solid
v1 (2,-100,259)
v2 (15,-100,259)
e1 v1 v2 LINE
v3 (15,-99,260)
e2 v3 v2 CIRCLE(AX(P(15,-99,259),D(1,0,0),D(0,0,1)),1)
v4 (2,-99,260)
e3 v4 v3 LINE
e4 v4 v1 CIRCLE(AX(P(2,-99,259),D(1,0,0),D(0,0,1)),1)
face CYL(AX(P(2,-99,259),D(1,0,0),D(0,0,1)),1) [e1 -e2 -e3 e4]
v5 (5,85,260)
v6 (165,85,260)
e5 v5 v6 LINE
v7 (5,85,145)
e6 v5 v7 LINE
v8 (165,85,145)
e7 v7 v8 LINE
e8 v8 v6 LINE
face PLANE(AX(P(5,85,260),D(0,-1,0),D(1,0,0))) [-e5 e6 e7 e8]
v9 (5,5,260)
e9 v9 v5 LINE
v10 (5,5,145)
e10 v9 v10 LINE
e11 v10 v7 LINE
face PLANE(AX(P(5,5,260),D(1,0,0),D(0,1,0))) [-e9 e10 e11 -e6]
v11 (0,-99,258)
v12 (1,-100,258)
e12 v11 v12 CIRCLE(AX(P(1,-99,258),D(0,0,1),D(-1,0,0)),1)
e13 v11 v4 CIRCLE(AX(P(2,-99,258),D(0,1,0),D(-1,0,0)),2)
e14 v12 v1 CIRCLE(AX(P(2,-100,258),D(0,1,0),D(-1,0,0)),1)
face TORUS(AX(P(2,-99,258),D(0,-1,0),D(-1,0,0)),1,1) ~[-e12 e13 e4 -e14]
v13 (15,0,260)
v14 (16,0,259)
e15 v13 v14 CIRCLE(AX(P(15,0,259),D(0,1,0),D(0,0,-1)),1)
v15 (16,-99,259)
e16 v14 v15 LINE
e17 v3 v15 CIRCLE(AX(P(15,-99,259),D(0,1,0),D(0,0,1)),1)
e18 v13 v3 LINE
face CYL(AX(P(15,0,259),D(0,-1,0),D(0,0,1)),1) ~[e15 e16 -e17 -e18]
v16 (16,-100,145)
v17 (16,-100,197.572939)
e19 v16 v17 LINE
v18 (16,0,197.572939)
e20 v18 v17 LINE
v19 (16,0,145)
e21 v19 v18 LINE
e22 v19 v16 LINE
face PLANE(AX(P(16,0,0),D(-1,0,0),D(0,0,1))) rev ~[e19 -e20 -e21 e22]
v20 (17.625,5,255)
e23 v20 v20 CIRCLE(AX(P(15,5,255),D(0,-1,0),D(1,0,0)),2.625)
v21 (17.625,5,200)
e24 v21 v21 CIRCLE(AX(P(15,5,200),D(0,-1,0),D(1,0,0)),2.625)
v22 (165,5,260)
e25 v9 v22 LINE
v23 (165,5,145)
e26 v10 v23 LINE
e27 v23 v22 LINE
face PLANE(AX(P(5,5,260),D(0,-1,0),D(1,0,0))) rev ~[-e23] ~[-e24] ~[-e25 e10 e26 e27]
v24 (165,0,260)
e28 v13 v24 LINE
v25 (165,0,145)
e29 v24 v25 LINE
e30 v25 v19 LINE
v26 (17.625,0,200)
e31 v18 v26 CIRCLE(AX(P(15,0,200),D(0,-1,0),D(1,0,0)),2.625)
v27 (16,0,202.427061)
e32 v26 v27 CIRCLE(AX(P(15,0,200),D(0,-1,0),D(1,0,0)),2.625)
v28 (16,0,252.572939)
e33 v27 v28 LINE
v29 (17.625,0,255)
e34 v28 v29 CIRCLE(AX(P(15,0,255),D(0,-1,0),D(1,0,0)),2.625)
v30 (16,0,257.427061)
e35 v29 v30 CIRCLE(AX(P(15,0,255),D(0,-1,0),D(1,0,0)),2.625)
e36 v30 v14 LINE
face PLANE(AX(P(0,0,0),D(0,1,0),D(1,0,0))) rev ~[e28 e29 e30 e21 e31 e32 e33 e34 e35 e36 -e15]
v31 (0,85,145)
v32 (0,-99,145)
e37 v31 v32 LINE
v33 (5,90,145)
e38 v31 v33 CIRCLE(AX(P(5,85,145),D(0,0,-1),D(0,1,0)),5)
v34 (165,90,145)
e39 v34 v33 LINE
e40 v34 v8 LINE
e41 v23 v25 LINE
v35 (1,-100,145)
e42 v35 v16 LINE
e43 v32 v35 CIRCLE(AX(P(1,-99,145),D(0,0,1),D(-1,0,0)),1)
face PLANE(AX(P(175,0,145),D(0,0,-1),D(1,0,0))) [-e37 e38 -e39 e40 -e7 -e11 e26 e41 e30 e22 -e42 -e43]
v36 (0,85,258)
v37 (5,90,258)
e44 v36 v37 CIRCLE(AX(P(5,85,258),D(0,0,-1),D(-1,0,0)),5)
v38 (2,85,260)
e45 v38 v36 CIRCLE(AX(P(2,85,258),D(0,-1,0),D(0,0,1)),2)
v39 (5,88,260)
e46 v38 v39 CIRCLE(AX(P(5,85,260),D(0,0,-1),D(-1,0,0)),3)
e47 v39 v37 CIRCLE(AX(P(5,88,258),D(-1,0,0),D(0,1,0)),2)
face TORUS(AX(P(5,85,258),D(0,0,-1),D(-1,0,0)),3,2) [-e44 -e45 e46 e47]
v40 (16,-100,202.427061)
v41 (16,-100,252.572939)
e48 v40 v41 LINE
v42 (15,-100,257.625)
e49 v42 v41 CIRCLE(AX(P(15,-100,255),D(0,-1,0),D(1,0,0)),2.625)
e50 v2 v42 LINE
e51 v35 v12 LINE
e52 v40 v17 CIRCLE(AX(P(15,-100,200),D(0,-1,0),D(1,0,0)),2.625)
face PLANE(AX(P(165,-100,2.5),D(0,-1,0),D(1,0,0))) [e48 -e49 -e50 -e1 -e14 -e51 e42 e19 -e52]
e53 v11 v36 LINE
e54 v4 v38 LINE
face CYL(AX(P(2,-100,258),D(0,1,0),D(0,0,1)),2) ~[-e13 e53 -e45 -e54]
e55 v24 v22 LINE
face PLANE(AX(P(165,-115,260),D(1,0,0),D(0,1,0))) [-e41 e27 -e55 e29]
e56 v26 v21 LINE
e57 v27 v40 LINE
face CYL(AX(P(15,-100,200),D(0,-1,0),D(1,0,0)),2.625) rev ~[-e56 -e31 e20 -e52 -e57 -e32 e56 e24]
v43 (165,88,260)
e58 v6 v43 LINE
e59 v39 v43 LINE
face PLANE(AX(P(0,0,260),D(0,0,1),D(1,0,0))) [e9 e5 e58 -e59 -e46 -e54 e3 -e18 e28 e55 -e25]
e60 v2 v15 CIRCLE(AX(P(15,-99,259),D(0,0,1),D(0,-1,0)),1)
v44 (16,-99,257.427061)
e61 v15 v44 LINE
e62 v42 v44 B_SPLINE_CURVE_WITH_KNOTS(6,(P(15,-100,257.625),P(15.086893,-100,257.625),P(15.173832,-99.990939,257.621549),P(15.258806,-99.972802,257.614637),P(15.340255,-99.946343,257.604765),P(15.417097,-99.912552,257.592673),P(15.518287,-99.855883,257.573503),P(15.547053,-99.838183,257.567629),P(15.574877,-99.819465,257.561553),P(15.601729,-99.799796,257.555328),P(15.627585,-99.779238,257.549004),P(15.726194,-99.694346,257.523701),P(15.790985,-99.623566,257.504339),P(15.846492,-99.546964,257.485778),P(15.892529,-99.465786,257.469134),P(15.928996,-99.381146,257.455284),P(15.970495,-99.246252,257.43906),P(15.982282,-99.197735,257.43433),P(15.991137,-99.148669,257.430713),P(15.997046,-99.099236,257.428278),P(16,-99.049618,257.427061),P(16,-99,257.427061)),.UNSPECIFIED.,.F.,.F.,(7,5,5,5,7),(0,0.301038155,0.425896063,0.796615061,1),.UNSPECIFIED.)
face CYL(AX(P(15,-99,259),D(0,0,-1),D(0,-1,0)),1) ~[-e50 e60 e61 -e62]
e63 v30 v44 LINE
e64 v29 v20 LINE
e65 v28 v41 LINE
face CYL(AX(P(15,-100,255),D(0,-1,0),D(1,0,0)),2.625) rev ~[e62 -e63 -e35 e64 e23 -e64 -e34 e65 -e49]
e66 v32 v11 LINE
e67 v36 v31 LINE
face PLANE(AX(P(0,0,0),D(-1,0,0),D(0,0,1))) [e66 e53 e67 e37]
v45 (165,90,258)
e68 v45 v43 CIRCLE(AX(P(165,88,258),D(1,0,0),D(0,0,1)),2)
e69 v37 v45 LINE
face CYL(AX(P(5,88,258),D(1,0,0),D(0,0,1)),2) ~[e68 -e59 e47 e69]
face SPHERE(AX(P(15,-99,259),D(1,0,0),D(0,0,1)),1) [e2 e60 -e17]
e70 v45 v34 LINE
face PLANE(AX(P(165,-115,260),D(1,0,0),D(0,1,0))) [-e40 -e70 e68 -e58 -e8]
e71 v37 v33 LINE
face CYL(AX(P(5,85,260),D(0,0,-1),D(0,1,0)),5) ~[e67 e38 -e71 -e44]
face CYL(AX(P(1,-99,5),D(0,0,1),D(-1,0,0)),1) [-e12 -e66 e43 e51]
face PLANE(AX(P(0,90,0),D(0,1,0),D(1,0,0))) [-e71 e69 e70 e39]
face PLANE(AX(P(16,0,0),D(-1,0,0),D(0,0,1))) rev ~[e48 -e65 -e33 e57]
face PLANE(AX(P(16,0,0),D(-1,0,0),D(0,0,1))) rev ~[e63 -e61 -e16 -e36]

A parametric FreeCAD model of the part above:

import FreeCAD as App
import Part
import Sketcher
from FreeCAD import Vector
Q = App.Units.Quantity


def edges_at(feature, points):
    """Names of the edges that pass closest to the given points."""
    edges = feature.Shape.Edges
    near = lambda p: min(range(len(edges)), key=lambda i: edges[i].distToShape(Part.Vertex(*p))[0])
    return sorted({f"Edge{near(p) + 1}" for p in points})


def add_polygon(sketch, points):
    """Adds a closed chain of lines whose ends are joined by coincident constraints."""
    first, n = sketch.GeometryCount, len(points)
    for a, b in zip(points, points[1:] + points[:1]):
        sketch.addGeometry(Part.LineSegment(App.Vector(*a, 0), App.Vector(*b, 0)), False)
    for i in range(n):
        sketch.addConstraint(Sketcher.Constraint("Coincident", first + i, 2, first + (i + 1) % n, 1))

doc = App.newDocument("Part")
params = doc.addObject("Spreadsheet::Sheet", "Params")
for row, (alias, value) in enumerate([
    ("sketch1_width", "330 mm"),
    ("sketch1_height", "90 mm"),
    ("pad1_length", "260 mm"),
    ("sketch2_width", "320 mm"),
    ("sketch2_height", "80 mm"),
    ("pocket1_length", "250 mm"),
    ("sketch3_width", "16 mm"),
    ("sketch3_height", "260 mm"),
    ("pad2_length", "100 mm"),
    ("sketch4_diameter", "5.25 mm"),
    ("pocket2_length", "105 mm"),
    ("fillet_radius", "5 mm"),
    ("fillet2_radius", "5 mm"),
    ("fillet3_radius", "5 mm"),
    ("fillet4_radius", "2 mm"),
    ("fillet5_radius", "1 mm"),
    ("fillet6_radius", "1 mm"),
    ("fillet7_radius", "1 mm"),
    ("fillet8_radius", "1 mm"),
    ("sketch5_width", "298 mm"),
    ("sketch5_height", "5 mm"),
    ("pad3_length", "100 mm"),
    ("fillet9_radius", "1 mm"),
    ("sketch6_width", "390 mm"),
    ("sketch6_height", "230 mm"),
    ("pocket3_length", "145 mm"),
    ("sketch7_width", "165 mm"),
    ("sketch7_height", "230 mm"),
    ("pocket4_length", "300 mm"),
], start=1):
    params.set(f"A{row}", alias)
    params.set(f"B{row}", "=" + value)
    params.setAlias(f"B{row}", alias)

body = doc.addObject("PartDesign::Body", "Body")

# Sketch on XY plane
sketch1 = body.newObject("Sketcher::SketchObject", "Sketch")
sketch1.AttachmentSupport = (doc.getObject("XY_Plane"), [""])
sketch1.MapMode = "FlatFace"
add_polygon(sketch1, [(0, 90), (0, 0), (330, 0), (330, 90)])  # lines 0-3
sketch1.addConstraint(Sketcher.Constraint("Vertical", 0))
sketch1.addConstraint(Sketcher.Constraint("Horizontal", 1))
sketch1.addConstraint(Sketcher.Constraint("Vertical", 2))
sketch1.addConstraint(Sketcher.Constraint("Horizontal", 3))
sketch1.addConstraint(Sketcher.Constraint("Coincident", 0, 2, -1, 1))
sketch1.addConstraint(Sketcher.Constraint("DistanceX", 1, 1, 1, 2, Q("330 mm")))
sketch1.addConstraint(Sketcher.Constraint("DistanceY", 0, 2, 0, 1, Q("90 mm")))
sketch1.setExpression("Constraints[9]", "Params.sketch1_width")
sketch1.setExpression("Constraints[10]", "Params.sketch1_height")
pad1 = body.newObject("PartDesign::Pad", "Pad")
pad1.Profile = sketch1
pad1.setExpression("Length", "Params.pad1_length")

# Sketch on XY plane
sketch2 = body.newObject("Sketcher::SketchObject", "Sketch001")
sketch2.AttachmentSupport = (doc.getObject("XY_Plane"), [""])
sketch2.MapMode = "FlatFace"
sketch2.AttachmentOffset = App.Placement(Vector(0, 0, 260), App.Rotation())
add_polygon(sketch2, [(5, 85), (5, 5), (325, 5), (325, 85)])  # lines 0-3
sketch2.addConstraint(Sketcher.Constraint("Vertical", 0))
sketch2.addConstraint(Sketcher.Constraint("Horizontal", 1))
sketch2.addConstraint(Sketcher.Constraint("Vertical", 2))
sketch2.addConstraint(Sketcher.Constraint("Horizontal", 3))
sketch2.addConstraint(Sketcher.Constraint("DistanceX", 1, 1, 1, 2, Q("320 mm")))
sketch2.addConstraint(Sketcher.Constraint("DistanceY", 0, 2, 0, 1, Q("80 mm")))
sketch2.addConstraint(Sketcher.Constraint("DistanceX", -1, 1, 0, 2, Q("5 mm")))
sketch2.addConstraint(Sketcher.Constraint("DistanceY", -1, 1, 0, 2, Q("5 mm")))
sketch2.setExpression("Constraints[8]", "Params.sketch2_width")
sketch2.setExpression("Constraints[9]", "Params.sketch2_height")
pocket1 = body.newObject("PartDesign::Pocket", "Pocket")
pocket1.Profile = sketch2
pocket1.setExpression("Length", "Params.pocket1_length")

# Sketch on XZ plane
sketch3 = body.newObject("Sketcher::SketchObject", "Sketch002")
sketch3.AttachmentSupport = (doc.getObject("XZ_Plane"), [""])
sketch3.MapMode = "FlatFace"
add_polygon(sketch3, [(0, 260), (0, 0), (16, 0), (16, 260)])  # lines 0-3
add_polygon(sketch3, [(314, 260), (314, 0), (330, 0), (330, 260)])  # lines 4-7
sketch3.addConstraint(Sketcher.Constraint("Vertical", 0))
sketch3.addConstraint(Sketcher.Constraint("Horizontal", 1))
sketch3.addConstraint(Sketcher.Constraint("Vertical", 2))
sketch3.addConstraint(Sketcher.Constraint("Horizontal", 3))
sketch3.addConstraint(Sketcher.Constraint("Vertical", 4))
sketch3.addConstraint(Sketcher.Constraint("Horizontal", 5))
sketch3.addConstraint(Sketcher.Constraint("Vertical", 6))
sketch3.addConstraint(Sketcher.Constraint("Horizontal", 7))
sketch3.addConstraint(Sketcher.Constraint("Coincident", 0, 2, -1, 1))
sketch3.addConstraint(Sketcher.Constraint("PointOnObject", 4, 2, -1))
sketch3.addConstraint(Sketcher.Constraint("Horizontal", 3, 2, 6, 2))
sketch3.addConstraint(Sketcher.Constraint("Equal", 3, 5))
sketch3.addConstraint(Sketcher.Constraint("DistanceX", 1, 1, 1, 2, Q("16 mm")))
sketch3.addConstraint(Sketcher.Constraint("DistanceY", 0, 2, 0, 1, Q("260 mm")))
sketch3.addConstraint(Sketcher.Constraint("DistanceX", -1, 1, 4, 2, Q("314 mm")))
sketch3.setExpression("Constraints[20]", "Params.sketch3_width")
sketch3.setExpression("Constraints[21]", "Params.sketch3_height")
pad2 = body.newObject("PartDesign::Pad", "Pad001")
pad2.Profile = sketch3
pad2.setExpression("Length", "Params.pad2_length")

# Sketch on XZ plane
sketch4 = body.newObject("Sketcher::SketchObject", "Sketch003")
sketch4.AttachmentSupport = (doc.getObject("XZ_Plane"), [""])
sketch4.MapMode = "FlatFace"
sketch4.AttachmentOffset = App.Placement(Vector(0, 0, 100), App.Rotation())
sketch4.addGeometry(Part.Circle(Vector(15, 40, 0), Vector(0, 0, 1), 2.625), False)
sketch4.addGeometry(Part.Circle(Vector(315, 40, 0), Vector(0, 0, 1), 2.625), False)
sketch4.addGeometry(Part.Circle(Vector(15, 120, 0), Vector(0, 0, 1), 2.625), False)
sketch4.addGeometry(Part.Circle(Vector(315, 120, 0), Vector(0, 0, 1), 2.625), False)
sketch4.addGeometry(Part.Circle(Vector(15, 200, 0), Vector(0, 0, 1), 2.625), False)
sketch4.addGeometry(Part.Circle(Vector(315, 200, 0), Vector(0, 0, 1), 2.625), False)
sketch4.addGeometry(Part.Circle(Vector(15, 255, 0), Vector(0, 0, 1), 2.625), False)
sketch4.addGeometry(Part.Circle(Vector(315, 255, 0), Vector(0, 0, 1), 2.625), False)
sketch4.addConstraint(Sketcher.Constraint("Equal", 0, 1))
sketch4.addConstraint(Sketcher.Constraint("Equal", 1, 2))
sketch4.addConstraint(Sketcher.Constraint("Equal", 2, 3))
sketch4.addConstraint(Sketcher.Constraint("Equal", 3, 4))
sketch4.addConstraint(Sketcher.Constraint("Equal", 4, 5))
sketch4.addConstraint(Sketcher.Constraint("Equal", 5, 6))
sketch4.addConstraint(Sketcher.Constraint("Equal", 6, 7))
sketch4.addConstraint(Sketcher.Constraint("Horizontal", 0, 3, 1, 3))
sketch4.addConstraint(Sketcher.Constraint("Horizontal", 2, 3, 3, 3))
sketch4.addConstraint(Sketcher.Constraint("Horizontal", 4, 3, 5, 3))
sketch4.addConstraint(Sketcher.Constraint("Horizontal", 6, 3, 7, 3))
sketch4.addConstraint(Sketcher.Constraint("Vertical", 0, 3, 2, 3))
sketch4.addConstraint(Sketcher.Constraint("Vertical", 1, 3, 3, 3))
sketch4.addConstraint(Sketcher.Constraint("Vertical", 2, 3, 4, 3))
sketch4.addConstraint(Sketcher.Constraint("Vertical", 3, 3, 5, 3))
sketch4.addConstraint(Sketcher.Constraint("Vertical", 4, 3, 6, 3))
sketch4.addConstraint(Sketcher.Constraint("Vertical", 5, 3, 7, 3))
sketch4.addConstraint(Sketcher.Constraint("Diameter", 0, Q("5.25 mm")))
sketch4.addConstraint(Sketcher.Constraint("DistanceX", -1, 1, 0, 3, Q("15 mm")))
sketch4.addConstraint(Sketcher.Constraint("DistanceY", -1, 1, 0, 3, Q("40 mm")))
sketch4.addConstraint(Sketcher.Constraint("DistanceX", -1, 1, 1, 3, Q("315 mm")))
sketch4.addConstraint(Sketcher.Constraint("DistanceY", -1, 1, 2, 3, Q("120 mm")))
sketch4.addConstraint(Sketcher.Constraint("DistanceY", -1, 1, 4, 3, Q("200 mm")))
sketch4.addConstraint(Sketcher.Constraint("DistanceY", -1, 1, 6, 3, Q("255 mm")))
sketch4.setExpression("Constraints[17]", "Params.sketch4_diameter")
pocket2 = body.newObject("PartDesign::Pocket", "Pocket001")
pocket2.Profile = sketch4
pocket2.setExpression("Length", "Params.pocket2_length")
doc.recompute()

fillet = body.newObject("PartDesign::Fillet", "Fillet")
fillet.Base = (pocket2, edges_at(pocket2, [(0, -5, 0)]))
fillet.setExpression("Radius", "Params.fillet_radius")
doc.recompute()

fillet2 = body.newObject("PartDesign::Fillet", "Fillet001")
fillet2.Base = (fillet, edges_at(fillet, [(330, -5, 0)]))
fillet2.setExpression("Radius", "Params.fillet2_radius")
doc.recompute()

fillet3 = body.newObject("PartDesign::Fillet", "Fillet002")
fillet3.Base = (fillet2, edges_at(fillet2, [(165, 90, 0)]))
fillet3.setExpression("Radius", "Params.fillet3_radius")
doc.recompute()

fillet4 = body.newObject("PartDesign::Fillet", "Fillet003")
fillet4.Base = (fillet3, edges_at(fillet3, [(0, -7.5, 260)]))
fillet4.setExpression("Radius", "Params.fillet4_radius")
doc.recompute()

fillet5 = body.newObject("PartDesign::Fillet", "Fillet004")
fillet5.Base = (fillet4, edges_at(fillet4, [(9, -100, 260)]))
fillet5.setExpression("Radius", "Params.fillet5_radius")
doc.recompute()

fillet6 = body.newObject("PartDesign::Fillet", "Fillet005")
fillet6.Base = (fillet5, edges_at(fillet5, [(16, -49.5, 260)]))
fillet6.setExpression("Radius", "Params.fillet6_radius")
doc.recompute()

fillet7 = body.newObject("PartDesign::Fillet", "Fillet006")
fillet7.Base = (fillet6, edges_at(fillet6, [(321, -100, 260)]))
fillet7.setExpression("Radius", "Params.fillet7_radius")
doc.recompute()

fillet8 = body.newObject("PartDesign::Fillet", "Fillet007")
fillet8.Base = (fillet7, edges_at(fillet7, [(314, -49.5, 260)]))
fillet8.setExpression("Radius", "Params.fillet8_radius")

# Sketch on XZ plane
sketch5 = body.newObject("Sketcher::SketchObject", "Sketch004")
sketch5.AttachmentSupport = (doc.getObject("XZ_Plane"), [""])
sketch5.MapMode = "FlatFace"
add_polygon(sketch5, [(16, 5), (16, 0), (314, 0), (314, 5)])  # lines 0-3
sketch5.addConstraint(Sketcher.Constraint("Vertical", 0))
sketch5.addConstraint(Sketcher.Constraint("Horizontal", 1))
sketch5.addConstraint(Sketcher.Constraint("Vertical", 2))
sketch5.addConstraint(Sketcher.Constraint("Horizontal", 3))
sketch5.addConstraint(Sketcher.Constraint("PointOnObject", 0, 2, -1))
sketch5.addConstraint(Sketcher.Constraint("DistanceX", 1, 1, 1, 2, Q("298 mm")))
sketch5.addConstraint(Sketcher.Constraint("DistanceY", 0, 2, 0, 1, Q("5 mm")))
sketch5.addConstraint(Sketcher.Constraint("DistanceX", -1, 1, 0, 2, Q("16 mm")))
sketch5.setExpression("Constraints[9]", "Params.sketch5_width")
sketch5.setExpression("Constraints[10]", "Params.sketch5_height")
pad3 = body.newObject("PartDesign::Pad", "Pad002")
pad3.Profile = sketch5
pad3.setExpression("Length", "Params.pad3_length")
doc.recompute()

fillet9 = body.newObject("PartDesign::Fillet", "Fillet008")
fillet9.Base = (pad3, edges_at(pad3, [(165, -100, 0)]))
fillet9.setExpression("Radius", "Params.fillet9_radius")

# Sketch on XY plane
sketch6 = body.newObject("Sketcher::SketchObject", "Sketch005")
sketch6.AttachmentSupport = (doc.getObject("XY_Plane"), [""])
sketch6.MapMode = "FlatFace"
add_polygon(sketch6, [(-20, -115), (-20, 115), (370, 115), (370, -115)])  # lines 0-3
sketch6.addConstraint(Sketcher.Constraint("Vertical", 0))
sketch6.addConstraint(Sketcher.Constraint("Horizontal", 1))
sketch6.addConstraint(Sketcher.Constraint("Vertical", 2))
sketch6.addConstraint(Sketcher.Constraint("Horizontal", 3))
sketch6.addConstraint(Sketcher.Constraint("DistanceX", 1, 1, 1, 2, Q("390 mm")))
sketch6.addConstraint(Sketcher.Constraint("DistanceY", 0, 1, 0, 2, Q("230 mm")))
sketch6.addConstraint(Sketcher.Constraint("DistanceX", 0, 2, -1, 1, Q("20 mm")))
sketch6.addConstraint(Sketcher.Constraint("DistanceY", -1, 1, 0, 2, Q("115 mm")))
sketch6.setExpression("Constraints[8]", "Params.sketch6_width")
sketch6.setExpression("Constraints[9]", "Params.sketch6_height")
pocket3 = body.newObject("PartDesign::Pocket", "Pocket002")
pocket3.Profile = sketch6
pocket3.setExpression("Length", "Params.pocket3_length")
pocket3.Reversed = True

# Sketch on XY plane
sketch7 = body.newObject("Sketcher::SketchObject", "Sketch006")
sketch7.AttachmentSupport = (doc.getObject("XY_Plane"), [""])
sketch7.MapMode = "FlatFace"
sketch7.AttachmentOffset = App.Placement(Vector(0, 0, 260), App.Rotation())
add_polygon(sketch7, [(165, 115), (165, -115), (330, -115), (330, 115)])  # lines 0-3
sketch7.addConstraint(Sketcher.Constraint("Vertical", 0))
sketch7.addConstraint(Sketcher.Constraint("Horizontal", 1))
sketch7.addConstraint(Sketcher.Constraint("Vertical", 2))
sketch7.addConstraint(Sketcher.Constraint("Horizontal", 3))
sketch7.addConstraint(Sketcher.Constraint("DistanceX", 1, 1, 1, 2, Q("165 mm")))
sketch7.addConstraint(Sketcher.Constraint("DistanceY", 0, 2, 0, 1, Q("230 mm")))
sketch7.addConstraint(Sketcher.Constraint("DistanceX", -1, 1, 0, 2, Q("165 mm")))
sketch7.addConstraint(Sketcher.Constraint("DistanceY", 0, 2, -1, 1, Q("115 mm")))
sketch7.setExpression("Constraints[8]", "Params.sketch7_width")
sketch7.setExpression("Constraints[9]", "Params.sketch7_height")
pocket4 = body.newObject("PartDesign::Pocket", "Pocket003")
pocket4.Profile = sketch7
pocket4.setExpression("Length", "Params.pocket4_length")

doc.recompute()
